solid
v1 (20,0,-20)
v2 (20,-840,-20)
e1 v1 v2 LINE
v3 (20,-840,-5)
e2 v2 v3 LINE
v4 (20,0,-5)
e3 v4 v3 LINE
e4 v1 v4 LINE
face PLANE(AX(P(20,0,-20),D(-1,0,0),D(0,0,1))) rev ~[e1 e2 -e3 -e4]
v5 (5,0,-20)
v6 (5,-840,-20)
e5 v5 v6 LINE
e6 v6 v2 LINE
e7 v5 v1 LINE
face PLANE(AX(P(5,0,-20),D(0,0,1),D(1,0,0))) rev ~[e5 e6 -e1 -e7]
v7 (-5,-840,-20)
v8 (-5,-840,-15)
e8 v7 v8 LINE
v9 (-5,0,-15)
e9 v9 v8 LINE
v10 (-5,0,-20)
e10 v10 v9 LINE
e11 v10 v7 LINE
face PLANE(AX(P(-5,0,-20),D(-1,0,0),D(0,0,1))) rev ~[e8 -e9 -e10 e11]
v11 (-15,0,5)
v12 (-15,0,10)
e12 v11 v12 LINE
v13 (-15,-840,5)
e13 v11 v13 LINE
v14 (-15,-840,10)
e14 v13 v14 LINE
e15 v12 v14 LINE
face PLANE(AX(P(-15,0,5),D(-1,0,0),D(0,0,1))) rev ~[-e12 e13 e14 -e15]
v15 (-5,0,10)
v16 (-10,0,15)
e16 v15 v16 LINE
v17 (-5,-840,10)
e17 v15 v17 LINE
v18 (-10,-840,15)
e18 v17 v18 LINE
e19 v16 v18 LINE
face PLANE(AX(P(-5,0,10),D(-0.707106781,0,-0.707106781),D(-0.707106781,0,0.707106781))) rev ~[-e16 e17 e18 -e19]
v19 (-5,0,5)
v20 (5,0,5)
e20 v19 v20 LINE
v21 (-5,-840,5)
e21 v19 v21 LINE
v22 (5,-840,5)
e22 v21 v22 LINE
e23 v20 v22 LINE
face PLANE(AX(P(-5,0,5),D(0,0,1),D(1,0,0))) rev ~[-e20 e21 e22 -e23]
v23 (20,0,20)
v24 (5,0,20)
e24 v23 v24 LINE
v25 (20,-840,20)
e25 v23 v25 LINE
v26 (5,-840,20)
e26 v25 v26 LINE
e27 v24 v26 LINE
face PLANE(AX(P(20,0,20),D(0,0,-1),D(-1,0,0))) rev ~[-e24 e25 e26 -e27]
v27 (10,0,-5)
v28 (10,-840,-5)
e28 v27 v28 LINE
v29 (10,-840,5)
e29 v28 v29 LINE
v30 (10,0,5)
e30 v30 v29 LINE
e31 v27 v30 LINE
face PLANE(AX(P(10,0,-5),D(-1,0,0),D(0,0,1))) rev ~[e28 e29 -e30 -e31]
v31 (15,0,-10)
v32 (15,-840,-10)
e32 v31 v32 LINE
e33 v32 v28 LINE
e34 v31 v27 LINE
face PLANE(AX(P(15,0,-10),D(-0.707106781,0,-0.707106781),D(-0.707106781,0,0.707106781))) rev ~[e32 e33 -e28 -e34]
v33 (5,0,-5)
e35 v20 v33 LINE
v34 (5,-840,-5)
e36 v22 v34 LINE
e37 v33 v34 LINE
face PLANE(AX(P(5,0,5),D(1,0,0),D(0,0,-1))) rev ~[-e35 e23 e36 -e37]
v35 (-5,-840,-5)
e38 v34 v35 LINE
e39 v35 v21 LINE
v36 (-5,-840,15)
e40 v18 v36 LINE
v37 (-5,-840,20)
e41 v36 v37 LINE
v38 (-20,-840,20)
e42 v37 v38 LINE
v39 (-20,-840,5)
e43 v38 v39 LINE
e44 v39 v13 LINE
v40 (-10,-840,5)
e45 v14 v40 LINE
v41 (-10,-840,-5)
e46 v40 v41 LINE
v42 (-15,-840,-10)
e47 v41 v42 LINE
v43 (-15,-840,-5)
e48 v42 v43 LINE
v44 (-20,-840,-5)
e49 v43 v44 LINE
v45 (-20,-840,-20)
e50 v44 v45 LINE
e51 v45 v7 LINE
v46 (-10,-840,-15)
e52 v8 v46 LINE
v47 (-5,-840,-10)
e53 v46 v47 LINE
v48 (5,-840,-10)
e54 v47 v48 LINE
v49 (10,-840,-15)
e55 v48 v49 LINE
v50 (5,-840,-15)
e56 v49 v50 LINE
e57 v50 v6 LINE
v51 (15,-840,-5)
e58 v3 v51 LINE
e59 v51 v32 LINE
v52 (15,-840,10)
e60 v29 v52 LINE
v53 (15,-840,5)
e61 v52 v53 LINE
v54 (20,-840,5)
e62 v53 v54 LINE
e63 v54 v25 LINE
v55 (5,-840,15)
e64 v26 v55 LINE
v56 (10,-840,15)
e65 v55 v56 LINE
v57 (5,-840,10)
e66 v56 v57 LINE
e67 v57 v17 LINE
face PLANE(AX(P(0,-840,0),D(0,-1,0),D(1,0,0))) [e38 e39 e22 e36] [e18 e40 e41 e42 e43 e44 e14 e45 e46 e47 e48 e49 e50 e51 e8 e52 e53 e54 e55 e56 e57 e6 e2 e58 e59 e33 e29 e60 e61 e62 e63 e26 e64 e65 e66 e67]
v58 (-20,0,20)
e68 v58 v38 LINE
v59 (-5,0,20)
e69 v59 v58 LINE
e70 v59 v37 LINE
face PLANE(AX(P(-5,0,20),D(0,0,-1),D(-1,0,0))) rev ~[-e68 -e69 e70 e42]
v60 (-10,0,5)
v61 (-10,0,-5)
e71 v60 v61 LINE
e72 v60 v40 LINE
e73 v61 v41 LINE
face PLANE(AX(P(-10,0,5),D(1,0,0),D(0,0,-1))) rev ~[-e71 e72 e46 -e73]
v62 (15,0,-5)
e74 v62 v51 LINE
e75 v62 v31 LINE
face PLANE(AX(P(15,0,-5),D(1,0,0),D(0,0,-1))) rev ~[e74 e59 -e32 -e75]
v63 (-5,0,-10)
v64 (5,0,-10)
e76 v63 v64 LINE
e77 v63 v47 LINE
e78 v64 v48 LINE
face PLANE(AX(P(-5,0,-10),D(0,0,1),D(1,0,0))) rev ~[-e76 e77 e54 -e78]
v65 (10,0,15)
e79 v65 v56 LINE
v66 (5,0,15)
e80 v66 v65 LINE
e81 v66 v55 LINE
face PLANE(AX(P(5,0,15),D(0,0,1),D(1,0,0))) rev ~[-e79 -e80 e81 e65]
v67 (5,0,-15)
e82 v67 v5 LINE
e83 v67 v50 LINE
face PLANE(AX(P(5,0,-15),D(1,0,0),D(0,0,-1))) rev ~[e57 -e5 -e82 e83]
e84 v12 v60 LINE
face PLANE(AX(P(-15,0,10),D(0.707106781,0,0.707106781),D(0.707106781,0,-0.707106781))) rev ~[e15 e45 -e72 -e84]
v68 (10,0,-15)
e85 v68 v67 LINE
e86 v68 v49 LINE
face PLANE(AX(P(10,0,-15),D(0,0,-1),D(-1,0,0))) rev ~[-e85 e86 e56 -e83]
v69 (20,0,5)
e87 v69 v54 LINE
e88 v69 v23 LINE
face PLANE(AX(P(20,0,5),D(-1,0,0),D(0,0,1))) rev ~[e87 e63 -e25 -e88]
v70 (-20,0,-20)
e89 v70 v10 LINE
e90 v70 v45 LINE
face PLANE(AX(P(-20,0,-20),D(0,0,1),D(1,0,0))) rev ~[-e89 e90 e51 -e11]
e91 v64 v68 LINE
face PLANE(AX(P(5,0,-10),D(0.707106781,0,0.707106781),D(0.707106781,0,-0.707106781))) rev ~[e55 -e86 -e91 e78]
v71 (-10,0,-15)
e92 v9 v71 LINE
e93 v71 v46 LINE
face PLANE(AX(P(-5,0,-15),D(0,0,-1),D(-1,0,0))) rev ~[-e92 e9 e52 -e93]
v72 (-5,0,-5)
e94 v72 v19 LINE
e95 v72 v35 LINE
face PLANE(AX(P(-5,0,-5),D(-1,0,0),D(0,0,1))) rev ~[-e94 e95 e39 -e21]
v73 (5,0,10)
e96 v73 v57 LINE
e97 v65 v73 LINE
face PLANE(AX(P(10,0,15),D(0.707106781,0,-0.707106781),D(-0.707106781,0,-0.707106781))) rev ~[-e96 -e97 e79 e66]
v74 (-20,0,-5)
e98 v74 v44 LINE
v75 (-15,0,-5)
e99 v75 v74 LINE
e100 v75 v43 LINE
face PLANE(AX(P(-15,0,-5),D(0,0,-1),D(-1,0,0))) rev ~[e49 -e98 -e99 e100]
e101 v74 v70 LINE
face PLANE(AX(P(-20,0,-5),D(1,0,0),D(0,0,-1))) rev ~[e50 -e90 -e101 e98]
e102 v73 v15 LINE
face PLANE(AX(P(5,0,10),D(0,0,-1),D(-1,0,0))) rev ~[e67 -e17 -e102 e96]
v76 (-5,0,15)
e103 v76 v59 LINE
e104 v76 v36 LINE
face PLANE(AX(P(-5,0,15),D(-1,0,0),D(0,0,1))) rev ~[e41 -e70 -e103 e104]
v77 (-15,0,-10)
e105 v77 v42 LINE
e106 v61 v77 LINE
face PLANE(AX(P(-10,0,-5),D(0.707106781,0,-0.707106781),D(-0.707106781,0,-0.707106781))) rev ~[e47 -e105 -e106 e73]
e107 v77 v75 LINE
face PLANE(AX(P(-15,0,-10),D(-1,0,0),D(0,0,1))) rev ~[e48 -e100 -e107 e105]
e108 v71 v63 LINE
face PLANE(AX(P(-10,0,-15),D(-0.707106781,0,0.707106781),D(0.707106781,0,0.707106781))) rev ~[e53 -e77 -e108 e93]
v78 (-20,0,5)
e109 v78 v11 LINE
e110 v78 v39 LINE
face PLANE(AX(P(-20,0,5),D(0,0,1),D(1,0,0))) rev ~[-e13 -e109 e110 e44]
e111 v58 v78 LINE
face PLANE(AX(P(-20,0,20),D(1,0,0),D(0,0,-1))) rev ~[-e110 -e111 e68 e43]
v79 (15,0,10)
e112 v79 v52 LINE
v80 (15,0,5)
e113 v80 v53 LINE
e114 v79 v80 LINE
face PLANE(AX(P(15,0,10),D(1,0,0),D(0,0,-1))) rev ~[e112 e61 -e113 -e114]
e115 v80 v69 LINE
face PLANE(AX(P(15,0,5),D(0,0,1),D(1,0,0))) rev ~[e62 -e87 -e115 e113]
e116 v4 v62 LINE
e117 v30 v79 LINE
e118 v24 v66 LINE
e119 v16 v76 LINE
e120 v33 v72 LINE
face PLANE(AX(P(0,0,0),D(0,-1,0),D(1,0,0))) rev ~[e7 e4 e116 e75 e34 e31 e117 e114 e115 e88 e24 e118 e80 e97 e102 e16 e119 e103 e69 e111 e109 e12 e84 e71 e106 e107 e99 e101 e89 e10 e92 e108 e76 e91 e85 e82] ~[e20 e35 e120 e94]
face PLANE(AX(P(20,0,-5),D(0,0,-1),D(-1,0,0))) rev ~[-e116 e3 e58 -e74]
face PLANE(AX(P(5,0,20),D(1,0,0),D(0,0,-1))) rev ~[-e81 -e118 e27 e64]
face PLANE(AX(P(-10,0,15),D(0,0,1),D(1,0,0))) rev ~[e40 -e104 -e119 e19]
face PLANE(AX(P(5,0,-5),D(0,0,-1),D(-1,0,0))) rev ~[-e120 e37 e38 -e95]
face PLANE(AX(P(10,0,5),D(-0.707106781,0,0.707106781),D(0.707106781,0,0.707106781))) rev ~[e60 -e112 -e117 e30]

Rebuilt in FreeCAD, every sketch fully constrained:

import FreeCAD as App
import Part
import Sketcher

V = App.Vector
Q = App.Units.Quantity

doc = App.newDocument("Part")
body = doc.addObject("PartDesign::Body", "Body")

# Sketch on XZ plane
sketch1 = doc.addObject("Sketcher::SketchObject", "Sketch")
body.addObject(sketch1)
sketch1.AttachmentSupport = (doc.XZ_Plane, [""])
sketch1.MapMode = "FlatFace"
sketch1.addGeometry([
    Part.LineSegment(V(20, 5, 0), V(20, 20, 0)),  # 0
    Part.LineSegment(V(20, 20, 0), V(5, 20, 0)),  # 1
    Part.LineSegment(V(5, 20, 0), V(5, 15, 0)),  # 2
    Part.LineSegment(V(5, 15, 0), V(10, 15, 0)),  # 3
    Part.LineSegment(V(10, 15, 0), V(5, 10, 0)),  # 4
    Part.LineSegment(V(5, 10, 0), V(-5, 10, 0)),  # 5
    Part.LineSegment(V(-5, 10, 0), V(-10, 15, 0)),  # 6
    Part.LineSegment(V(-10, 15, 0), V(-5, 15, 0)),  # 7
    Part.LineSegment(V(-5, 15, 0), V(-5, 20, 0)),  # 8
    Part.LineSegment(V(-5, 20, 0), V(-20, 20, 0)),  # 9
    Part.LineSegment(V(-20, 20, 0), V(-20, 5, 0)),  # 10
    Part.LineSegment(V(-20, 5, 0), V(-15, 5, 0)),  # 11
    Part.LineSegment(V(-15, 5, 0), V(-15, 10, 0)),  # 12
    Part.LineSegment(V(-15, 10, 0), V(-10, 5, 0)),  # 13
    Part.LineSegment(V(-10, 5, 0), V(-10, -5, 0)),  # 14
    Part.LineSegment(V(-10, -5, 0), V(-15, -10, 0)),  # 15
    Part.LineSegment(V(-15, -10, 0), V(-15, -5, 0)),  # 16
    Part.LineSegment(V(-15, -5, 0), V(-20, -5, 0)),  # 17
    Part.LineSegment(V(-20, -5, 0), V(-20, -20, 0)),  # 18
    Part.LineSegment(V(-20, -20, 0), V(-5, -20, 0)),  # 19
    Part.LineSegment(V(-5, -20, 0), V(-5, -15, 0)),  # 20
    Part.LineSegment(V(-5, -15, 0), V(-10, -15, 0)),  # 21
    Part.LineSegment(V(-10, -15, 0), V(-5, -10, 0)),  # 22
    Part.LineSegment(V(-5, -10, 0), V(5, -10, 0)),  # 23
    Part.LineSegment(V(5, -10, 0), V(10, -15, 0)),  # 24
    Part.LineSegment(V(10, -15, 0), V(5, -15, 0)),  # 25
    Part.LineSegment(V(5, -15, 0), V(5, -20, 0)),  # 26
    Part.LineSegment(V(5, -20, 0), V(20, -20, 0)),  # 27
    Part.LineSegment(V(20, -20, 0), V(20, -5, 0)),  # 28
    Part.LineSegment(V(20, -5, 0), V(15, -5, 0)),  # 29
    Part.LineSegment(V(15, -5, 0), V(15, -10, 0)),  # 30
    Part.LineSegment(V(15, -10, 0), V(10, -5, 0)),  # 31
    Part.LineSegment(V(10, -5, 0), V(10, 5, 0)),  # 32
    Part.LineSegment(V(10, 5, 0), V(15, 10, 0)),  # 33
    Part.LineSegment(V(15, 10, 0), V(15, 5, 0)),  # 34
    Part.LineSegment(V(15, 5, 0), V(20, 5, 0)),  # 35
    Part.LineSegment(V(-5, -5, 0), V(-5, 5, 0)),  # 36
    Part.LineSegment(V(-5, 5, 0), V(5, 5, 0)),  # 37
    Part.LineSegment(V(5, 5, 0), V(5, -5, 0)),  # 38
    Part.LineSegment(V(5, -5, 0), V(-5, -5, 0)),  # 39
], False)
sketch1.addConstraint([
    Sketcher.Constraint("Coincident", 0, 2, 1, 1),
    Sketcher.Constraint("Coincident", 1, 2, 2, 1),
    Sketcher.Constraint("Coincident", 2, 2, 3, 1),
    Sketcher.Constraint("Coincident", 3, 2, 4, 1),
    Sketcher.Constraint("Coincident", 4, 2, 5, 1),
    Sketcher.Constraint("Coincident", 5, 2, 6, 1),
    Sketcher.Constraint("Coincident", 6, 2, 7, 1),
    Sketcher.Constraint("Coincident", 7, 2, 8, 1),
    Sketcher.Constraint("Coincident", 8, 2, 9, 1),
    Sketcher.Constraint("Coincident", 9, 2, 10, 1),
    Sketcher.Constraint("Coincident", 10, 2, 11, 1),
    Sketcher.Constraint("Coincident", 11, 2, 12, 1),
    Sketcher.Constraint("Coincident", 12, 2, 13, 1),
    Sketcher.Constraint("Coincident", 13, 2, 14, 1),
    Sketcher.Constraint("Coincident", 14, 2, 15, 1),
    Sketcher.Constraint("Coincident", 15, 2, 16, 1),
    Sketcher.Constraint("Coincident", 16, 2, 17, 1),
    Sketcher.Constraint("Coincident", 17, 2, 18, 1),
    Sketcher.Constraint("Coincident", 18, 2, 19, 1),
    Sketcher.Constraint("Coincident", 19, 2, 20, 1),
    Sketcher.Constraint("Coincident", 20, 2, 21, 1),
    Sketcher.Constraint("Coincident", 21, 2, 22, 1),
    Sketcher.Constraint("Coincident", 22, 2, 23, 1),
    Sketcher.Constraint("Coincident", 23, 2, 24, 1),
    Sketcher.Constraint("Coincident", 24, 2, 25, 1),
    Sketcher.Constraint("Coincident", 25, 2, 26, 1),
    Sketcher.Constraint("Coincident", 26, 2, 27, 1),
    Sketcher.Constraint("Coincident", 27, 2, 28, 1),
    Sketcher.Constraint("Coincident", 28, 2, 29, 1),
    Sketcher.Constraint("Coincident", 29, 2, 30, 1),
    Sketcher.Constraint("Coincident", 30, 2, 31, 1),
    Sketcher.Constraint("Coincident", 31, 2, 32, 1),
    Sketcher.Constraint("Coincident", 32, 2, 33, 1),
    Sketcher.Constraint("Coincident", 33, 2, 34, 1),
    Sketcher.Constraint("Coincident", 34, 2, 35, 1),
    Sketcher.Constraint("Coincident", 35, 2, 0, 1),
    Sketcher.Constraint("Coincident", 36, 2, 37, 1),
    Sketcher.Constraint("Coincident", 37, 2, 38, 1),
    Sketcher.Constraint("Coincident", 38, 2, 39, 1),
    Sketcher.Constraint("Coincident", 39, 2, 36, 1),
    Sketcher.Constraint("Vertical", 0),
    Sketcher.Constraint("Horizontal", 1),
    Sketcher.Constraint("Vertical", 2),
    Sketcher.Constraint("Horizontal", 3),
    Sketcher.Constraint("Horizontal", 5),
    Sketcher.Constraint("Horizontal", 7),
    Sketcher.Constraint("Vertical", 8),
    Sketcher.Constraint("Horizontal", 9),
    Sketcher.Constraint("Vertical", 10),
    Sketcher.Constraint("Horizontal", 11),
    Sketcher.Constraint("Vertical", 12),
    Sketcher.Constraint("Vertical", 14),
    Sketcher.Constraint("Vertical", 16),
    Sketcher.Constraint("Horizontal", 17),
    Sketcher.Constraint("Vertical", 18),
    Sketcher.Constraint("Horizontal", 19),
    Sketcher.Constraint("Vertical", 20),
    Sketcher.Constraint("Horizontal", 21),
    Sketcher.Constraint("Horizontal", 23),
    Sketcher.Constraint("Horizontal", 25),
    Sketcher.Constraint("Vertical", 26),
    Sketcher.Constraint("Horizontal", 27),
    Sketcher.Constraint("Vertical", 28),
    Sketcher.Constraint("Horizontal", 29),
    Sketcher.Constraint("Vertical", 30),
    Sketcher.Constraint("Vertical", 32),
    Sketcher.Constraint("Vertical", 34),
    Sketcher.Constraint("Horizontal", 35),
    Sketcher.Constraint("Vertical", 36),
    Sketcher.Constraint("Horizontal", 37),
    Sketcher.Constraint("Vertical", 38),
    Sketcher.Constraint("Horizontal", 39),
    Sketcher.Constraint("Symmetric", 0, 2, 18, 2, -1, 1),
    Sketcher.Constraint("Symmetric", 2, 2, 20, 2, -1, 1),
    Sketcher.Constraint("Symmetric", 4, 2, 22, 2, -1, 1),
    Sketcher.Constraint("Symmetric", 6, 2, 24, 2, -1, 1),
    Sketcher.Constraint("Symmetric", 8, 2, 26, 2, -1, 1),
    Sketcher.Constraint("Symmetric", 10, 2, 28, 2, -1, 1),
    Sketcher.Constraint("Symmetric", 12, 2, 30, 2, -1, 1),
    Sketcher.Constraint("Symmetric", 13, 2, 31, 2, -1, 1),
    Sketcher.Constraint("Symmetric", 15, 2, 33, 2, -1, 1),
    Sketcher.Constraint("Symmetric", 36, 2, 38, 2, -1, 1),
    Sketcher.Constraint("Symmetric", 3, 2, 6, 2, -2),
    Sketcher.Constraint("Symmetric", 1, 2, 8, 2, -2),
    Sketcher.Constraint("Symmetric", 17, 2, 28, 2, -2),
    Sketcher.Constraint("Symmetric", 15, 2, 30, 2, -2),
    Sketcher.Constraint("Perpendicular", 4, 6),
    Sketcher.Constraint("Parallel", 6, 13),
    Sketcher.Constraint("Perpendicular", 13, 15),
    Sketcher.Constraint("Parallel", 15, 22),
    Sketcher.Constraint("Perpendicular", 22, 24),
    Sketcher.Constraint("Perpendicular", 31, 33),
    Sketcher.Constraint("Horizontal", 5, 2, 12, 2),
    Sketcher.Constraint("Horizontal", 11, 2, 13, 2),
    Sketcher.Constraint("Horizontal", 14, 2, 16, 2),
    Sketcher.Constraint("Horizontal", 32, 2, 34, 2),
    Sketcher.Constraint("Horizontal", 35, 2, 36, 2),
    Sketcher.Constraint("Vertical", 2, 2, 4, 2),
    Sketcher.Constraint("Vertical", 6, 2, 13, 2),
    Sketcher.Constraint("Vertical", 22, 2, 36, 2),
    Sketcher.Constraint("Equal", 7, 11),
    Sketcher.Constraint("Equal", 27, 0),
    Sketcher.Constraint("Equal", 8, 12),
    Sketcher.Constraint("Equal", 39, 14),
    Sketcher.Constraint("DistanceX", 1, 2, 1, 1, Q("15 mm")),
    Sketcher.Constraint("DistanceX", 5, 2, 5, 1, Q("10 mm")),
])
pad1 = doc.addObject("PartDesign::Pad", "Pad")
body.addObject(pad1)
pad1.Profile = sketch1
pad1.Length = 840

doc.recompute()
